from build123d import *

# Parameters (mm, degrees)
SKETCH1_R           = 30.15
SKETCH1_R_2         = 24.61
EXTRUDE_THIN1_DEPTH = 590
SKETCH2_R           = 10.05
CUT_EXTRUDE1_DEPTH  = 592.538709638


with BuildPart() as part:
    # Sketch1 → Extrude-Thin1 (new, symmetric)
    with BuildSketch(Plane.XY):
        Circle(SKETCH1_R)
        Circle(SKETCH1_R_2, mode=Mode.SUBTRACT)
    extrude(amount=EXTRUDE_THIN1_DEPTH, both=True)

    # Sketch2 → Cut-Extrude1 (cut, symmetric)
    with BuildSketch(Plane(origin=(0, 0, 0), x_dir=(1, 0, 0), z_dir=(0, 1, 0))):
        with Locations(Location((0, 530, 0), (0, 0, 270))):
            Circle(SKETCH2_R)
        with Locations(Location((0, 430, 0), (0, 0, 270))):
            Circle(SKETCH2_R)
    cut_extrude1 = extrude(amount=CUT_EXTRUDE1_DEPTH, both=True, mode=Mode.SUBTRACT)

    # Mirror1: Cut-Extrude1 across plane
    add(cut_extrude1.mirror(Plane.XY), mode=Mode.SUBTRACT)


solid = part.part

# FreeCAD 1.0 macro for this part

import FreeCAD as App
import Part
import Sketcher

V = App.Vector

doc = App.newDocument("Part")
body = doc.addObject("PartDesign::Body", "Body")

# Sketch on XY plane
sketch1 = body.newObject("Sketcher::SketchObject", "Sketch")
sketch1.AttachmentSupport = (doc.getObject("XY_Plane"), [""])
sketch1.MapMode = "FlatFace"
sketch1.addGeometry(Part.Circle(V(0, 0, 0), V(0, 0, 1), 30.15), False)
sketch1.addGeometry(Part.Circle(V(0, 0, 0), V(0, 0, 1), 24.61), False)
sketch1.addConstraint(Sketcher.Constraint("Coincident", 0, 3, -1, 1))
sketch1.addConstraint(Sketcher.Constraint("Coincident", 1, 3, -1, 1))
sketch1.addConstraint(Sketcher.Constraint("Diameter", 0, 60.3))
sketch1.addConstraint(Sketcher.Constraint("Diameter", 1, 49.22))
pad1 = body.newObject("PartDesign::Pad", "Pad")
pad1.Profile = sketch1
pad1.Length = 1180
pad1.Midplane = True

# Sketch on XZ plane
sketch2 = body.newObject("Sketcher::SketchObject", "Sketch001")
sketch2.AttachmentSupport = (doc.getObject("XZ_Plane"), [""])
sketch2.MapMode = "FlatFace"
sketch2.addGeometry(Part.Circle(V(0, -530, 0), V(0, 0, 1), 10.05), False)
sketch2.addGeometry(Part.Circle(V(0, -430, 0), V(0, 0, 1), 10.05), False)
sketch2.addConstraint(Sketcher.Constraint("Equal", 0, 1))
sketch2.addConstraint(Sketcher.Constraint("PointOnObject", 0, 3, -2))
sketch2.addConstraint(Sketcher.Constraint("PointOnObject", 1, 3, -2))
sketch2.addConstraint(Sketcher.Constraint("Diameter", 0, 20.1))
sketch2.addConstraint(Sketcher.Constraint("DistanceY", 0, 3, -1, 1, 530.0))
sketch2.addConstraint(Sketcher.Constraint("DistanceY", 1, 3, -1, 1, 430.0))
pocket1 = body.newObject("PartDesign::Pocket", "Pocket")
pocket1.Profile = sketch2
pocket1.Length = 1185.077419
pocket1.Midplane = True
doc.recompute()

mirrored = body.newObject("PartDesign::Mirrored", "Mirrored")
mirrored.Originals = [pocket1]
mirrored.MirrorPlane = (doc.getObject("XY_Plane"), [""])
body.Tip = mirrored

doc.recompute()
